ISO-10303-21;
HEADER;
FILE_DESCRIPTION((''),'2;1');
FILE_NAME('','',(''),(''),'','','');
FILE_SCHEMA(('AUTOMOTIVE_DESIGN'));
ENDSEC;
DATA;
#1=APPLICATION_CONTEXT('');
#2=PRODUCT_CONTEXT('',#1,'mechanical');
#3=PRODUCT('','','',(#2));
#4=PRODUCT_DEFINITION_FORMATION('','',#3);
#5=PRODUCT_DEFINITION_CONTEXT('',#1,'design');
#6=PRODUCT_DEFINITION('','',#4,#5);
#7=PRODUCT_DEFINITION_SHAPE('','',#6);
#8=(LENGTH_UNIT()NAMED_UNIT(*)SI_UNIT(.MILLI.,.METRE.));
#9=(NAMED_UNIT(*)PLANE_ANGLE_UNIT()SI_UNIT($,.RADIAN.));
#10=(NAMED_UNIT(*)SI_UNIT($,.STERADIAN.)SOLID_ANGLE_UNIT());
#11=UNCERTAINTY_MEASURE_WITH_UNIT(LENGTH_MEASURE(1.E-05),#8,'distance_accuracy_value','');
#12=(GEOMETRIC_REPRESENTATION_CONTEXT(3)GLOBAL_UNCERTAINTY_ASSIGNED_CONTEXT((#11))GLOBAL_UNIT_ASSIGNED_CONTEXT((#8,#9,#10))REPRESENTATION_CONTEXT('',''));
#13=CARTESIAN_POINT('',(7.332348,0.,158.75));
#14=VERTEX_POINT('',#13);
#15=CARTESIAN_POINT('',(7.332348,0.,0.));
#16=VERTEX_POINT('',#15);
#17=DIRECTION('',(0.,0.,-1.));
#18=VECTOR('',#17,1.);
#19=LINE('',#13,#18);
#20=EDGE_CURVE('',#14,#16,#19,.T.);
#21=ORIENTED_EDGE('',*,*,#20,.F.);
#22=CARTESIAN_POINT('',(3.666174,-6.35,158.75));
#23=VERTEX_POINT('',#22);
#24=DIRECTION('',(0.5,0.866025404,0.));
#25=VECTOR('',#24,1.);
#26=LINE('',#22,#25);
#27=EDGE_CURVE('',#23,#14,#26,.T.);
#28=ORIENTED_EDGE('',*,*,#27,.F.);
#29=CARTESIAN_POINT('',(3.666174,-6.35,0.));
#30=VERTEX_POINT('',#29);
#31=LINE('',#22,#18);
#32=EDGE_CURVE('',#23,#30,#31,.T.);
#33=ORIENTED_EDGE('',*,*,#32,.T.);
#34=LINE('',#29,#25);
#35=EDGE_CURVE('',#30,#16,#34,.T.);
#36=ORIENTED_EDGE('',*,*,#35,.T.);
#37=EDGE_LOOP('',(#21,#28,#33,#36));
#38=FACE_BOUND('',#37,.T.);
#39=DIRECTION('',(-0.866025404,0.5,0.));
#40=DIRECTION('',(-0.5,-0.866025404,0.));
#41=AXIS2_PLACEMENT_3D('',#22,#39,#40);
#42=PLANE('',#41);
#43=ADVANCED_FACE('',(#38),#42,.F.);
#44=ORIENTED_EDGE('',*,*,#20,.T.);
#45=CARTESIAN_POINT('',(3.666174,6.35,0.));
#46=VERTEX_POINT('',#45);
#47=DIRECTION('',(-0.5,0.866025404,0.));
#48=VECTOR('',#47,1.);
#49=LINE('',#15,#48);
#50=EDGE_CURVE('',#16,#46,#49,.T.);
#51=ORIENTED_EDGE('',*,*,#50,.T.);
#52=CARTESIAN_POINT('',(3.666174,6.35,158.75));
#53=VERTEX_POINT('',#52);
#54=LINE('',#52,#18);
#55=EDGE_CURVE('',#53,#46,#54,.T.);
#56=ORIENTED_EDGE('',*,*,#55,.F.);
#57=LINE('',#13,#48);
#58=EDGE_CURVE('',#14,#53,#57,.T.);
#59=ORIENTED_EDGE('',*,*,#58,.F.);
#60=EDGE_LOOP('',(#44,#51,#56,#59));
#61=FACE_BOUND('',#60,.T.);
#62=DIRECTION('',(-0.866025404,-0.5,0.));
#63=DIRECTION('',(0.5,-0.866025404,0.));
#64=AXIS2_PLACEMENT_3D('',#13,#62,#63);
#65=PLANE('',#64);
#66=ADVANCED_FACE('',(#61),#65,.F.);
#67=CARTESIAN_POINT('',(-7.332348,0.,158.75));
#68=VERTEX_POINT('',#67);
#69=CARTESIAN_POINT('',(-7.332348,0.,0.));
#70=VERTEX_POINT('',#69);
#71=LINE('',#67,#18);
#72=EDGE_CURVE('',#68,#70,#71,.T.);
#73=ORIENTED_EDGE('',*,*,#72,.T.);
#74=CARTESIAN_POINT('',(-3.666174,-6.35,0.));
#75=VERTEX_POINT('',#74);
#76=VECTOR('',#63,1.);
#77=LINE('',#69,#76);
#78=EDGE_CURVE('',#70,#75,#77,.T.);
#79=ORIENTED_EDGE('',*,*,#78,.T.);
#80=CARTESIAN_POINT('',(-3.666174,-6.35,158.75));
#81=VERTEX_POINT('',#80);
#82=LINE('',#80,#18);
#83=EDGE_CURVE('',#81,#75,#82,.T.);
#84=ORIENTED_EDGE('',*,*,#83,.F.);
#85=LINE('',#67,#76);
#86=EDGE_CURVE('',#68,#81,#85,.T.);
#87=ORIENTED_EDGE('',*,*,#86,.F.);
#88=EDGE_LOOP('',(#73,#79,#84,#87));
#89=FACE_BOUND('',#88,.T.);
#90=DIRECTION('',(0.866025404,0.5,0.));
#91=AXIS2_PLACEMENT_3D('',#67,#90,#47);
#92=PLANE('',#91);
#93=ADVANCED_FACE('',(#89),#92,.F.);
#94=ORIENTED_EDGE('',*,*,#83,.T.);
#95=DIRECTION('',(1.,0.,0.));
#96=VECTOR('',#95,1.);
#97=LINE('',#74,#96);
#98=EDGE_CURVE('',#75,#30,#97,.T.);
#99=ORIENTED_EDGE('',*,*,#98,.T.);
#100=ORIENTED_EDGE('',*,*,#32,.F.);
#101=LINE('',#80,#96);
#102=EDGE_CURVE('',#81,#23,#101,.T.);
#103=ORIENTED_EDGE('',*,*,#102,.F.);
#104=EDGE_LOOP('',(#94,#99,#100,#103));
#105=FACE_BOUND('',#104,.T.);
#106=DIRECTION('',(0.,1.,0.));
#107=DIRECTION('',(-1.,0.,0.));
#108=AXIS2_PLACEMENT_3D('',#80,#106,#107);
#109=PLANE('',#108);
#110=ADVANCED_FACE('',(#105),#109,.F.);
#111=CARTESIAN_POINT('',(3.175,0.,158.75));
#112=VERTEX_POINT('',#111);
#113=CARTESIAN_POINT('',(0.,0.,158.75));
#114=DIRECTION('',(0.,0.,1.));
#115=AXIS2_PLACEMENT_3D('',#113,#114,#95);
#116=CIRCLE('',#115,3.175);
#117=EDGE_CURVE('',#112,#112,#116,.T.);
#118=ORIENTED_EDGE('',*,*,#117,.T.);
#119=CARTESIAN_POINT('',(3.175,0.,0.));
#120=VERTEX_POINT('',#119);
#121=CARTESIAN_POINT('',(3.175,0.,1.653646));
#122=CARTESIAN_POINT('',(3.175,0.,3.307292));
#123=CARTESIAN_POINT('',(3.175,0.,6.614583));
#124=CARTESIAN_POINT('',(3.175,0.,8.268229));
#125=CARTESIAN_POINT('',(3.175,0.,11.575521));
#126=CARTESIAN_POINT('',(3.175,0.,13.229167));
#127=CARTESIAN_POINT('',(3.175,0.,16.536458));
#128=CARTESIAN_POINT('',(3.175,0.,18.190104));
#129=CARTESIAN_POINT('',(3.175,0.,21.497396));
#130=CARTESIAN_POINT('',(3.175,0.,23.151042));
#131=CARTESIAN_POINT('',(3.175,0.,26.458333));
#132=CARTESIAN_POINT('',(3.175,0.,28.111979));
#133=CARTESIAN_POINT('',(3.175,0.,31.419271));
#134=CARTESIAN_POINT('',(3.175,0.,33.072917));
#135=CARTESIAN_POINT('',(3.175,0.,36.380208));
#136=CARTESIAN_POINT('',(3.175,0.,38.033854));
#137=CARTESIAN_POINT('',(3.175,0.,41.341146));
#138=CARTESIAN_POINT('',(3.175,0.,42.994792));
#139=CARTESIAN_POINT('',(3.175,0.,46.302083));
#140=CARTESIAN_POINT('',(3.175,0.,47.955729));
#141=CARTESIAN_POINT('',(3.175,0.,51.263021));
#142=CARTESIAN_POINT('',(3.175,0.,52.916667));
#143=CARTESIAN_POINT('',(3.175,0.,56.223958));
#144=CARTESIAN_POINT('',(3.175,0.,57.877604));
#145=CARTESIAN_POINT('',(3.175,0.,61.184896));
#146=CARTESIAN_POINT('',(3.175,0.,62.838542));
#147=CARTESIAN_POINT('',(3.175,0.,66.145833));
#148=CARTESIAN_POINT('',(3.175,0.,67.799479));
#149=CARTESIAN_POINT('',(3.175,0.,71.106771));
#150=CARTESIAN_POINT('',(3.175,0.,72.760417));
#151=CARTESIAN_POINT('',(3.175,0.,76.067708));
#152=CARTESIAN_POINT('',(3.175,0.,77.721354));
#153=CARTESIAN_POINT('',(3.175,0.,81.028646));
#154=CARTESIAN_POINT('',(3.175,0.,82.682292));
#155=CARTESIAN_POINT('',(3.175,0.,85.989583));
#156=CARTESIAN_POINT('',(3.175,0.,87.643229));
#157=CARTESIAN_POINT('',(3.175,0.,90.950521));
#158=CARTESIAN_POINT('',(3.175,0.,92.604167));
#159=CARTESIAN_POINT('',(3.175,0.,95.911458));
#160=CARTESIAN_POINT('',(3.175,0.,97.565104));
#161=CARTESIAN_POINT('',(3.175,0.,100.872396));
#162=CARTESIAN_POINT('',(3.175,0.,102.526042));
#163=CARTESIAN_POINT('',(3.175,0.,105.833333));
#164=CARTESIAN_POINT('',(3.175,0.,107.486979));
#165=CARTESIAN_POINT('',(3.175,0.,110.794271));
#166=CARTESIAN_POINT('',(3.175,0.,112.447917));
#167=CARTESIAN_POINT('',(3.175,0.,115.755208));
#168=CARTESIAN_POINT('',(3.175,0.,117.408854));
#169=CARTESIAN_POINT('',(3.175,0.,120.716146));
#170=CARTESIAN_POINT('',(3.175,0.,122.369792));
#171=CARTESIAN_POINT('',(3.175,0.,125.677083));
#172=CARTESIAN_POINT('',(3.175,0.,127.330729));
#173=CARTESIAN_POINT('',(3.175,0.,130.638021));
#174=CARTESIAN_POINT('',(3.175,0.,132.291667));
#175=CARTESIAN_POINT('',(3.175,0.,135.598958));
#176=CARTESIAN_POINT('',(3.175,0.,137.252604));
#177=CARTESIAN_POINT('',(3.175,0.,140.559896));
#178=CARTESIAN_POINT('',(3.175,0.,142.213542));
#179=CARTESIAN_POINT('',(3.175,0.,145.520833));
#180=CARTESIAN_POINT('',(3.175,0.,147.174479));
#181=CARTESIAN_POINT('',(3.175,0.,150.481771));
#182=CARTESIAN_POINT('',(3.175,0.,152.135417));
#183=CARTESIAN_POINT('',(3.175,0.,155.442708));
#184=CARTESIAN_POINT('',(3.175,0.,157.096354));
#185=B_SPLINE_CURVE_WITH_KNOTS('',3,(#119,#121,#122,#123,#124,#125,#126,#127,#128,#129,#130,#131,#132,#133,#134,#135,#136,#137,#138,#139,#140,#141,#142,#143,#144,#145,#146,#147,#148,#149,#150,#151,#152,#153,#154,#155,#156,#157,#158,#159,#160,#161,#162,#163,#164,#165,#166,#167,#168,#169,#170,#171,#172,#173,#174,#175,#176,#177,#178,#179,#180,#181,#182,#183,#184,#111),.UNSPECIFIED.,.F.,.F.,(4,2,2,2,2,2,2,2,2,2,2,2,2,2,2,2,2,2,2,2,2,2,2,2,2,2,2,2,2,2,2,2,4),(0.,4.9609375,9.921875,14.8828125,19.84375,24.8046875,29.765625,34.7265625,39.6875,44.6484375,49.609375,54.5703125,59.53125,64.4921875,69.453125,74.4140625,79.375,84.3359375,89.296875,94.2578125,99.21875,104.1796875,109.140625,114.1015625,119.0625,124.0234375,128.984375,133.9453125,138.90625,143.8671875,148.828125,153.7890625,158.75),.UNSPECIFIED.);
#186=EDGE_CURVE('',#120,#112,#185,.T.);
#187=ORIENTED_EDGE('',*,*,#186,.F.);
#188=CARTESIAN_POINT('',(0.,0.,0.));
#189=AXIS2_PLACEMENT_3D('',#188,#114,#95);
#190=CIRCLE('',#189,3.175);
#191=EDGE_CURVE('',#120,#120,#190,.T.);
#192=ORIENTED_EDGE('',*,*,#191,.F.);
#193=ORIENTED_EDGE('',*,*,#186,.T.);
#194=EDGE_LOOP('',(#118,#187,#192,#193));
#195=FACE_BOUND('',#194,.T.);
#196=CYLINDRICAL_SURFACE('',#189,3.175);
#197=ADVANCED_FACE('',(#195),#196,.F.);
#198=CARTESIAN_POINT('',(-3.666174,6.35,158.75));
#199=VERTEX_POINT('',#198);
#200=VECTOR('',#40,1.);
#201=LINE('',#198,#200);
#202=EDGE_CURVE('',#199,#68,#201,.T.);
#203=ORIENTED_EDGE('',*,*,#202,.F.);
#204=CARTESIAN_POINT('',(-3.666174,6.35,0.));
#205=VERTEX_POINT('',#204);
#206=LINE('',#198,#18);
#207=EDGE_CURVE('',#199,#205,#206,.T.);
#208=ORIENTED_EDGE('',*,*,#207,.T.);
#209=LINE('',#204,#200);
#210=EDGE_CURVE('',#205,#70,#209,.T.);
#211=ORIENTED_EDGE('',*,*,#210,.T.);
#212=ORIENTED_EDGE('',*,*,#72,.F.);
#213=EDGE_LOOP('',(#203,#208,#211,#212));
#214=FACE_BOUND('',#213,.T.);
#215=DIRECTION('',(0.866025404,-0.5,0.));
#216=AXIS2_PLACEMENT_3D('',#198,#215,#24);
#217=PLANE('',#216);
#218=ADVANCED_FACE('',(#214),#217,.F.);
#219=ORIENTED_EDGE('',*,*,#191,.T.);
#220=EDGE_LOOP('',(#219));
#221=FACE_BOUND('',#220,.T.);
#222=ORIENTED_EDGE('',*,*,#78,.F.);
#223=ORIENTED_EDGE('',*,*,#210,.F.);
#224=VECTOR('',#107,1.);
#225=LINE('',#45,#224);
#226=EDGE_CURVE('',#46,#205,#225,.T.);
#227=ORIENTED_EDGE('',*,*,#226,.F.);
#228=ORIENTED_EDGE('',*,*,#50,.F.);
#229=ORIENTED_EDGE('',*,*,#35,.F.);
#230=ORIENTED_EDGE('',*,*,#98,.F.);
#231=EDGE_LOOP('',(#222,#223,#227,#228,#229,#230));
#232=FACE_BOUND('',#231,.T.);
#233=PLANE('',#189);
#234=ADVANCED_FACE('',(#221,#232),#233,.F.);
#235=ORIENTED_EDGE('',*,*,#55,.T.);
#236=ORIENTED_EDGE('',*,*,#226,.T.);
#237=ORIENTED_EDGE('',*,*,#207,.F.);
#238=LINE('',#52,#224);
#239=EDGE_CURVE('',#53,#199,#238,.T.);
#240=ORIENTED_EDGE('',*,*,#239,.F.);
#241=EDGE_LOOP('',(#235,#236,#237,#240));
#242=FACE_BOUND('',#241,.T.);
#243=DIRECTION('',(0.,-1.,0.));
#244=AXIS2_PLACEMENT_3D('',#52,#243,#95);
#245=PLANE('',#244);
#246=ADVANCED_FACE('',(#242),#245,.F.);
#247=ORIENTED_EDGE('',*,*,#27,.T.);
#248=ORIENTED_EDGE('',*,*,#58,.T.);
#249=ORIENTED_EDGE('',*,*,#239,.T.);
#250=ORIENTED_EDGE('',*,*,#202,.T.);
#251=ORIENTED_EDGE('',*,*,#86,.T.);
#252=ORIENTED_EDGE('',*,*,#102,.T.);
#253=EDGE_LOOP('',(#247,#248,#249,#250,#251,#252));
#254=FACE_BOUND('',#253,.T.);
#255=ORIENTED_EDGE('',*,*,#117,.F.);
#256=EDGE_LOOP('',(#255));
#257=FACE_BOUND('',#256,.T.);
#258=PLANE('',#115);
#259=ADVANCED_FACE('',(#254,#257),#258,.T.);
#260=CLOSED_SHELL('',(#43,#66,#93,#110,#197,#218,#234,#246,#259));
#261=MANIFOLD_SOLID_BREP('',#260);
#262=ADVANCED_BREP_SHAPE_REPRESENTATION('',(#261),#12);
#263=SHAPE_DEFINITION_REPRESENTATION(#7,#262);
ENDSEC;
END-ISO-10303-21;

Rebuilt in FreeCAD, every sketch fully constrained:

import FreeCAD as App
import Part
import Sketcher

V = App.Vector
Q = App.Units.Quantity

doc = App.newDocument("Part")
params = doc.addObject("Spreadsheet::Sheet", "Params")
for row, (alias, value) in enumerate([
    ("pad1_length", "6.25 in"),
    ("sketch2_diameter", "0.25 in"),
], start=1):
    params.set(f"A{row}", alias)
    params.set(f"B{row}", "=" + value)
    params.setAlias(f"B{row}", alias)

body = doc.addObject("PartDesign::Body", "Body")

sketch1 = body.newObject("Sketcher::SketchObject", "Sketch")
sketch1.AttachmentSupport = (doc.getObject("XY_Plane"), [""])
sketch1.MapMode = "FlatFace"
sketch1.addGeometry([
    Part.LineSegment(V(7, 0, 0), V(4, 6, 0)),
    Part.LineSegment(V(4, 6, 0), V(-4, 6, 0)),
    Part.LineSegment(V(-4, 6, 0), V(-7, 0, 0)),
    Part.LineSegment(V(-7, 0, 0), V(-4, -6, 0)),
    Part.LineSegment(V(-4, -6, 0), V(4, -6, 0)),
    Part.LineSegment(V(4, -6, 0), V(7, 0, 0)),
], False)
sketch1.addConstraint([
    Sketcher.Constraint("Coincident", 0, 2, 1, 1),
    Sketcher.Constraint("Coincident", 1, 2, 2, 1),
    Sketcher.Constraint("Coincident", 2, 2, 3, 1),
    Sketcher.Constraint("Coincident", 3, 2, 4, 1),
    Sketcher.Constraint("Coincident", 4, 2, 5, 1),
    Sketcher.Constraint("Coincident", 5, 2, 0, 1),
    Sketcher.Constraint("Horizontal", 1),
    Sketcher.Constraint("Horizontal", 4),
    Sketcher.Constraint("Symmetric", 0, 2, 3, 2, -1, 1),
    Sketcher.Constraint("Symmetric", 2, 2, 5, 2, -1, 1),
    Sketcher.Constraint("PointOnObject", 2, 2, -1),
    Sketcher.Constraint("Parallel", 2, 5),
    Sketcher.Constraint("Vertical", 1, 2, 3, 2),
    Sketcher.Constraint("Angle", 0, Q("120 deg")),
    Sketcher.Constraint("DistanceY", 3, 2, 1, 2, Q("0.5 in")),
    Sketcher.Constraint("DistanceX", 1, 2, 1, 1, 7.332348),
])
pad1 = body.newObject("PartDesign::Pad", "Pad")
pad1.Profile = sketch1
pad1.setExpression("Length", "Params.pad1_length")

sketch2 = body.newObject("Sketcher::SketchObject", "Sketch001")
sketch2.AttachmentSupport = (doc.getObject("XY_Plane"), [""])
sketch2.MapMode = "FlatFace"
sketch2.AttachmentOffset = App.Placement(V(0, 0, 6.25 * 25.4), App.Rotation())
sketch2.addGeometry(Part.Circle(V(0, 0, 0), V(0, 0, 1), 3.2), False)
sketch2.addConstraint([
    Sketcher.Constraint("Coincident", 0, 3, -1, 1),
    Sketcher.Constraint("Diameter", 0, Q("0.25 in")),
])
sketch2.setExpression("Constraints[1]", "Params.sketch2_diameter")
pocket1 = body.newObject("PartDesign::Pocket", "Pocket")
pocket1.Profile = sketch2
pocket1.Type = "ThroughAll"
pocket1.Midplane = True

doc.recompute()
